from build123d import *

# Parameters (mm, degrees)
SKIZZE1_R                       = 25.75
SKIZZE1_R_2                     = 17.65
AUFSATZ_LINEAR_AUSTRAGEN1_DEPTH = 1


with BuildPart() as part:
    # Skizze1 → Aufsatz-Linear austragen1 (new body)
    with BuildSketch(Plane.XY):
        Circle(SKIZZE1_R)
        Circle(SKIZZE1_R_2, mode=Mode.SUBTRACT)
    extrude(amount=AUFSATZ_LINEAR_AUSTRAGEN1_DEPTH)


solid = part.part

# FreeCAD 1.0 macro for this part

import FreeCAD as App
import Part
import Sketcher

doc = App.newDocument("Part")
body = doc.addObject("PartDesign::Body", "Body")

sketch1 = body.newObject("Sketcher::SketchObject", "Sketch")
sketch1.AttachmentSupport = (doc.getObject("XY_Plane"), [""])
sketch1.MapMode = "FlatFace"
sketch1.addGeometry(Part.Circle(App.Vector(0, 0, 0), App.Vector(0, 0, 1), 25.75), False)
sketch1.addGeometry(Part.Circle(App.Vector(0, 0, 0), App.Vector(0, 0, 1), 17.65), False)
sketch1.addConstraint(Sketcher.Constraint("Coincident", 0, 3, -1, 1))
sketch1.addConstraint(Sketcher.Constraint("Coincident", 1, 3, -1, 1))
sketch1.addConstraint(Sketcher.Constraint("Diameter", 0, 51.5))
sketch1.addConstraint(Sketcher.Constraint("Diameter", 1, 35.3))
pad1 = body.newObject("PartDesign::Pad", "Pad")
pad1.Profile = sketch1
pad1.Length = 1

doc.recompute()
